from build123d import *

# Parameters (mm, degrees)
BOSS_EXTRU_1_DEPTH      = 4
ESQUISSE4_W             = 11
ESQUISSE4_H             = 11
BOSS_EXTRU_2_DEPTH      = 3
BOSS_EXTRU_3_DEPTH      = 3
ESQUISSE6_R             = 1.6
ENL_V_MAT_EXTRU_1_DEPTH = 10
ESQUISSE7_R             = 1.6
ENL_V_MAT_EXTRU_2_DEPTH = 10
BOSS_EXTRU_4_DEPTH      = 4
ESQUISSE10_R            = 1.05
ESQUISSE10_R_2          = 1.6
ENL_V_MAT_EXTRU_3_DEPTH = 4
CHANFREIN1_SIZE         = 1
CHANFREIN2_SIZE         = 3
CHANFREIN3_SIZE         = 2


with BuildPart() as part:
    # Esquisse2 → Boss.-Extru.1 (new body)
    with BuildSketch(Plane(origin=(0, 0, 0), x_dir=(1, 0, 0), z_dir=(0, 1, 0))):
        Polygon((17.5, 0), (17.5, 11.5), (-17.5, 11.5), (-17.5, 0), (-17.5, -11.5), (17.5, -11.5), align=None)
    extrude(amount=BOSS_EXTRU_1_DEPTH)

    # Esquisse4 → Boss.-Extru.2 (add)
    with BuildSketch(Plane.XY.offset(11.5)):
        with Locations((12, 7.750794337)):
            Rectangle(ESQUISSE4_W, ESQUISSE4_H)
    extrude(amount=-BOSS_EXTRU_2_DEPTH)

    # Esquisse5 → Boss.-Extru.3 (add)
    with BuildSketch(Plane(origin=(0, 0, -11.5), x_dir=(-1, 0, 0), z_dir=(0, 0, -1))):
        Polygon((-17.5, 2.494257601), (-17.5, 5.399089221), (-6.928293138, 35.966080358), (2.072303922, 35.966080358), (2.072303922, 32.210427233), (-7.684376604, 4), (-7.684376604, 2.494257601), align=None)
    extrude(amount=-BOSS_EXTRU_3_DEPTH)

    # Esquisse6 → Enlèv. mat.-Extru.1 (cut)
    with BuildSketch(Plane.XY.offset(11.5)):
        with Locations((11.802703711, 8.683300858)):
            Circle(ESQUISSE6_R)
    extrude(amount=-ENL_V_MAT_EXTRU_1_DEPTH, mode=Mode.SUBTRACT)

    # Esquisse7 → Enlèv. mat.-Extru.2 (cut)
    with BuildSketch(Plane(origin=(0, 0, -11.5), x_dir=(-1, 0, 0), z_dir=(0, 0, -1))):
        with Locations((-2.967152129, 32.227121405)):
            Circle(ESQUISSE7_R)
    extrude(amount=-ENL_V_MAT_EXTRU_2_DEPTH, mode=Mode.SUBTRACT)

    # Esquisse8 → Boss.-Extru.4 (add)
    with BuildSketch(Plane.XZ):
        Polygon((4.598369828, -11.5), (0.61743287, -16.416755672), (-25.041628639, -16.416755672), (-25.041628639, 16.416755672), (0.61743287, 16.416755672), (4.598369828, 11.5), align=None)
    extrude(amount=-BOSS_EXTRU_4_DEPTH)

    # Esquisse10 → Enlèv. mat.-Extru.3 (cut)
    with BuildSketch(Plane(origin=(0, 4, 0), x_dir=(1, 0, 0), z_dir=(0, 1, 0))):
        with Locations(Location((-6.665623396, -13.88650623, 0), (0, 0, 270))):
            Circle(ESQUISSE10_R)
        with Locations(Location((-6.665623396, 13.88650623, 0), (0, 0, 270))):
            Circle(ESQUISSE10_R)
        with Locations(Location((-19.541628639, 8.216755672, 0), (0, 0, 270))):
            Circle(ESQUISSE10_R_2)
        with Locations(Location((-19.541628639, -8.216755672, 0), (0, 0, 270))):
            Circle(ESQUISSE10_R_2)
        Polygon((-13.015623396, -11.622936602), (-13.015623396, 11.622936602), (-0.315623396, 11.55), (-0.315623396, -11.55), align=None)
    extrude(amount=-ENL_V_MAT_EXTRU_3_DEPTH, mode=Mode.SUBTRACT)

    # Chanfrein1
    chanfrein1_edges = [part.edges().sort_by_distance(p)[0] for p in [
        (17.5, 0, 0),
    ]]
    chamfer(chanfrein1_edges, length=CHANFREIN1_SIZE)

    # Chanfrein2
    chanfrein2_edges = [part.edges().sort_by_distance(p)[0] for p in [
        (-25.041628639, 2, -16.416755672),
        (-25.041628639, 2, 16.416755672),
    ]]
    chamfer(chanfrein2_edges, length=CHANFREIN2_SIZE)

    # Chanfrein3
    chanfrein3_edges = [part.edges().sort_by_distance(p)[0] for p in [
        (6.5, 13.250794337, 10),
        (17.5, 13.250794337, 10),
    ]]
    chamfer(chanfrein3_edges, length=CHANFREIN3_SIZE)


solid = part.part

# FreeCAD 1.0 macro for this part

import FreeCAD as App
import Part
import Sketcher

V = App.Vector


def edges_at(feature, points):
    """Names of the edges that pass closest to the given points."""
    edges = feature.Shape.Edges
    near = lambda p: min(range(len(edges)), key=lambda i: edges[i].distToShape(Part.Vertex(*p))[0])
    return sorted({f"Edge{near(p) + 1}" for p in points})

doc = App.newDocument("Part")
body = doc.addObject("PartDesign::Body", "Body")

# Sketch on XZ plane
sketch1 = body.newObject("Sketcher::SketchObject", "Sketch")
sketch1.AttachmentSupport = (doc.getObject("XZ_Plane"), [""])
sketch1.MapMode = "FlatFace"
sketch1.addGeometry([
    Part.LineSegment(V(18, -12, 0), V(-18, -12, 0)),
    Part.LineSegment(V(-18, -12, 0), V(-18, 12, 0)),
    Part.LineSegment(V(-18, 12, 0), V(18, 12, 0)),
    Part.LineSegment(V(18, 12, 0), V(18, -12, 0)),
], False)
sketch1.addConstraint([
    Sketcher.Constraint("Coincident", 0, 2, 1, 1),
    Sketcher.Constraint("Coincident", 1, 2, 2, 1),
    Sketcher.Constraint("Coincident", 2, 2, 3, 1),
    Sketcher.Constraint("Coincident", 3, 2, 0, 1),
    Sketcher.Constraint("Horizontal", 0),
    Sketcher.Constraint("Vertical", 1),
    Sketcher.Constraint("Horizontal", 2),
    Sketcher.Constraint("Vertical", 3),
    Sketcher.Constraint("Symmetric", 0, 2, 2, 2, -1, 1),
    Sketcher.Constraint("DistanceX", 0, 2, 0, 1, 35.0),
    Sketcher.Constraint("DistanceY", 1, 1, 1, 2, 23.0),
])
pad1 = body.newObject("PartDesign::Pad", "Pad")
pad1.Profile = sketch1
pad1.Length = 4
pad1.Reversed = True

# Sketch on XY plane
sketch2 = body.newObject("Sketcher::SketchObject", "Sketch001")
sketch2.AttachmentSupport = (doc.getObject("XY_Plane"), [""])
sketch2.MapMode = "FlatFace"
sketch2.AttachmentOffset = App.Placement(V(0, 0, 11.5), App.Rotation())
sketch2.addGeometry([
    Part.LineSegment(V(6, 13, 0), V(6, 2, 0)),
    Part.LineSegment(V(6, 2, 0), V(18, 2, 0)),
    Part.LineSegment(V(18, 2, 0), V(18, 13, 0)),
    Part.LineSegment(V(18, 13, 0), V(6, 13, 0)),
], False)
sketch2.addConstraint([
    Sketcher.Constraint("Coincident", 0, 2, 1, 1),
    Sketcher.Constraint("Coincident", 1, 2, 2, 1),
    Sketcher.Constraint("Coincident", 2, 2, 3, 1),
    Sketcher.Constraint("Coincident", 3, 2, 0, 1),
    Sketcher.Constraint("Vertical", 0),
    Sketcher.Constraint("Horizontal", 1),
    Sketcher.Constraint("Vertical", 2),
    Sketcher.Constraint("Horizontal", 3),
    Sketcher.Constraint("Equal", 3, 0),
    Sketcher.Constraint("DistanceX", 1, 1, 1, 2, 11.0),
    Sketcher.Constraint("DistanceX", -1, 1, 0, 2, 6.5),
    Sketcher.Constraint("DistanceY", -1, 1, 0, 2, 2.250794),
])
pad2 = body.newObject("PartDesign::Pad", "Pad001")
pad2.Profile = sketch2
pad2.Length = 3
pad2.Reversed = True

# Sketch on XY plane
sketch3 = body.newObject("Sketcher::SketchObject", "Sketch002")
sketch3.AttachmentSupport = (doc.getObject("XY_Plane"), [""])
sketch3.MapMode = "FlatFace"
sketch3.AttachmentOffset = App.Placement(V(0, 0, -11.5), App.Rotation())
sketch3.addGeometry([
    Part.LineSegment(V(17.5, 5.4, 0), V(17.5, 2.5, 0)),  # 0
    Part.LineSegment(V(17.5, 2.5, 0), V(7.7, 2.5, 0)),  # 1
    Part.LineSegment(V(7.7, 2.5, 0), V(7.7, 4, 0)),  # 2
    Part.LineSegment(V(7.7, 4, 0), V(-2.1, 32.2, 0)),  # 3
    Part.LineSegment(V(-2.1, 32.2, 0), V(-2.1, 36, 0)),  # 4
    Part.LineSegment(V(-2.1, 36, 0), V(6.9, 36, 0)),  # 5
    Part.LineSegment(V(6.9, 36, 0), V(17.5, 5.4, 0)),  # 6
], False)
sketch3.addConstraint([
    Sketcher.Constraint("Coincident", 0, 2, 1, 1),
    Sketcher.Constraint("Coincident", 1, 2, 2, 1),
    Sketcher.Constraint("Coincident", 2, 2, 3, 1),
    Sketcher.Constraint("Coincident", 3, 2, 4, 1),
    Sketcher.Constraint("Coincident", 4, 2, 5, 1),
    Sketcher.Constraint("Coincident", 5, 2, 6, 1),
    Sketcher.Constraint("Coincident", 6, 2, 0, 1),
    Sketcher.Constraint("Vertical", 0),
    Sketcher.Constraint("Horizontal", 1),
    Sketcher.Constraint("Vertical", 2),
    Sketcher.Constraint("Vertical", 4),
    Sketcher.Constraint("Horizontal", 5),
    Sketcher.Constraint("Parallel", 3, 6),
    Sketcher.Constraint("DistanceY", -1, 1, 2, 2, 4.0),
    Sketcher.Constraint("DistanceX", -1, 1, 0, 2, 17.5),
    Sketcher.Constraint("Distance", 6, 32.343499),
    Sketcher.Constraint("DistanceY", 0, 2, 0, 1, 2.904832),
    Sketcher.Constraint("DistanceX", 1, 2, 1, 1, 9.815623),
    Sketcher.Constraint("DistanceX", 5, 1, 5, 2, 9.000597),
    Sketcher.Constraint("DistanceY", 2, 1, 2, 2, 1.505742),
    Sketcher.Constraint("DistanceY", 4, 1, 4, 2, 3.755653),
])
pad3 = body.newObject("PartDesign::Pad", "Pad002")
pad3.Profile = sketch3
pad3.Length = 3

# Sketch on XY plane
sketch4 = body.newObject("Sketcher::SketchObject", "Sketch003")
sketch4.AttachmentSupport = (doc.getObject("XY_Plane"), [""])
sketch4.MapMode = "FlatFace"
sketch4.AttachmentOffset = App.Placement(V(0, 0, 11.5), App.Rotation())
sketch4.addGeometry(Part.Circle(V(11.8, 8.7, 0), V(0, 0, 1), 1.6), False)
sketch4.addConstraint([
    Sketcher.Constraint("Diameter", 0, 3.2),
    Sketcher.Constraint("DistanceY", -1, 1, 0, 3, 8.683301),
    Sketcher.Constraint("DistanceX", -1, 1, 0, 3, 11.802704),
])
pocket1 = body.newObject("PartDesign::Pocket", "Pocket")
pocket1.Profile = sketch4
pocket1.Length = 10

# Sketch on XY plane
sketch5 = body.newObject("Sketcher::SketchObject", "Sketch004")
sketch5.AttachmentSupport = (doc.getObject("XY_Plane"), [""])
sketch5.MapMode = "FlatFace"
sketch5.AttachmentOffset = App.Placement(V(0, 0, -11.5), App.Rotation())
sketch5.addGeometry(Part.Circle(V(3, 32.2, 0), V(0, 0, 1), 1.6), False)
sketch5.addConstraint([
    Sketcher.Constraint("Diameter", 0, 3.2),
    Sketcher.Constraint("DistanceY", -1, 1, 0, 3, 32.227121),
    Sketcher.Constraint("DistanceX", -1, 1, 0, 3, 2.967152),
])
pocket2 = body.newObject("PartDesign::Pocket", "Pocket001")
pocket2.Profile = sketch5
pocket2.Length = 10
pocket2.Reversed = True

# Sketch on XZ plane
sketch6 = body.newObject("Sketcher::SketchObject", "Sketch005")
sketch6.AttachmentSupport = (doc.getObject("XZ_Plane"), [""])
sketch6.MapMode = "FlatFace"
sketch6.addGeometry([
    Part.LineSegment(V(1, -16, 0), V(5, -12, 0)),  # 0
    Part.LineSegment(V(5, -12, 0), V(5, 12, 0)),  # 1
    Part.LineSegment(V(5, 12, 0), V(1, 16, 0)),  # 2
    Part.LineSegment(V(1, 16, 0), V(-25, 16, 0)),  # 3
    Part.LineSegment(V(-25, 16, 0), V(-25, -16, 0)),  # 4
    Part.LineSegment(V(-25, -16, 0), V(1, -16, 0)),  # 5
], False)
sketch6.addConstraint([
    Sketcher.Constraint("Coincident", 0, 2, 1, 1),
    Sketcher.Constraint("Coincident", 1, 2, 2, 1),
    Sketcher.Constraint("Coincident", 2, 2, 3, 1),
    Sketcher.Constraint("Coincident", 3, 2, 4, 1),
    Sketcher.Constraint("Coincident", 4, 2, 5, 1),
    Sketcher.Constraint("Coincident", 5, 2, 0, 1),
    Sketcher.Constraint("Vertical", 1),
    Sketcher.Constraint("Horizontal", 3),
    Sketcher.Constraint("Vertical", 4),
    Sketcher.Constraint("Horizontal", 5),
    Sketcher.Constraint("Symmetric", 2, 2, 5, 2, -1),
    Sketcher.Constraint("Equal", 0, 2),
    Sketcher.Constraint("DistanceY", 1, 1, 1, 2, 23.0),
    Sketcher.Constraint("DistanceX", 3, 2, 1, 2, 29.639998),
    Sketcher.Constraint("DistanceX", 3, 2, 3, 1, 25.659062),
    Sketcher.Constraint("DistanceY", 4, 2, 4, 1, 32.833511),
    Sketcher.Constraint("DistanceX", -1, 1, 0, 2, 4.59837),
])
pad4 = body.newObject("PartDesign::Pad", "Pad003")
pad4.Profile = sketch6
pad4.Length = 4
pad4.Reversed = True

# Sketch on XZ plane
sketch7 = body.newObject("Sketcher::SketchObject", "Sketch006")
sketch7.AttachmentSupport = (doc.getObject("XZ_Plane"), [""])
sketch7.MapMode = "FlatFace"
sketch7.AttachmentOffset = App.Placement(V(0, 0, -4), App.Rotation())
sketch7.addGeometry([
    Part.Circle(V(-6.665623, 13.886506, 0), V(0, 0, 1), 1.05),  # 0
    Part.Circle(V(-6.665623, -13.886506, 0), V(0, 0, 1), 1.05),  # 1
    Part.Circle(V(-19.541629, -8.216756, 0), V(0, 0, 1), 1.6),  # 2
    Part.Circle(V(-19.541629, 8.216756, 0), V(0, 0, 1), 1.6),  # 3
    Part.LineSegment(V(-13.015623, -11.622937, 0), V(-13.015623, 11.622937, 0)),  # 4
    Part.LineSegment(V(-13.015623, 11.622937, 0), V(-0.315623, 11.55, 0)),  # 5
    Part.LineSegment(V(-0.315623, 11.55, 0), V(-0.315623, -11.55, 0)),  # 6
    Part.LineSegment(V(-0.315623, -11.55, 0), V(-13.015623, -11.622937, 0)),  # 7
], False)
sketch7.addConstraint([
    Sketcher.Constraint("Coincident", 4, 2, 5, 1),
    Sketcher.Constraint("Coincident", 5, 2, 6, 1),
    Sketcher.Constraint("Coincident", 6, 2, 7, 1),
    Sketcher.Constraint("Coincident", 7, 2, 4, 1),
    Sketcher.Constraint("Vertical", 4),
    Sketcher.Constraint("Vertical", 6),
    Sketcher.Constraint("Equal", 0, 1),
    Sketcher.Constraint("Equal", 2, 3),
    Sketcher.Constraint("Symmetric", 0, 3, 1, 3, -1),
    Sketcher.Constraint("Symmetric", 2, 3, 3, 3, -1),
    Sketcher.Constraint("Equal", 5, 7),
    Sketcher.Constraint("Diameter", 0, 2.1),
    Sketcher.Constraint("Diameter", 2, 3.2),
    Sketcher.Constraint("DistanceY", 6, 2, 6, 1, 23.1),
    Sketcher.Constraint("DistanceX", 4, 2, 5, 2, 12.7),
    Sketcher.Constraint("DistanceY", -1, 1, 5, 2, 11.55),
    Sketcher.Constraint("DistanceX", 4, 2, 0, 3, 6.35),
    Sketcher.Constraint("Distance", 5, 12.700209),
    Sketcher.Constraint("DistanceX", 2, 3, -1, 1, 19.541629),
    Sketcher.Constraint("DistanceY", 1, 3, 2, 3, 5.669751),
    Sketcher.Constraint("DistanceY", 2, 3, 0, 3, 22.103262),
    Sketcher.Constraint("DistanceX", 0, 3, -1, 1, 6.665623),
])
pocket3 = body.newObject("PartDesign::Pocket", "Pocket002")
pocket3.Profile = sketch7
pocket3.Length = 4
pocket3.Reversed = True
doc.recompute()

chamfer = body.newObject("PartDesign::Chamfer", "Chamfer")
chamfer.Base = (pocket3, edges_at(pocket3, [(17.5, 0, 0)]))
chamfer.Size = 1
doc.recompute()

chamfer2 = body.newObject("PartDesign::Chamfer", "Chamfer001")
chamfer2.Base = (chamfer, edges_at(chamfer, [(-25.042, 2, -16.417), (-25.042, 2, 16.417)]))
chamfer2.Size = 3
doc.recompute()

chamfer3 = body.newObject("PartDesign::Chamfer", "Chamfer002")
chamfer3.Base = (chamfer2, edges_at(chamfer2, [(6.5, 13.251, 10), (17.5, 13.251, 10)]))
chamfer3.Size = 2

doc.recompute()
